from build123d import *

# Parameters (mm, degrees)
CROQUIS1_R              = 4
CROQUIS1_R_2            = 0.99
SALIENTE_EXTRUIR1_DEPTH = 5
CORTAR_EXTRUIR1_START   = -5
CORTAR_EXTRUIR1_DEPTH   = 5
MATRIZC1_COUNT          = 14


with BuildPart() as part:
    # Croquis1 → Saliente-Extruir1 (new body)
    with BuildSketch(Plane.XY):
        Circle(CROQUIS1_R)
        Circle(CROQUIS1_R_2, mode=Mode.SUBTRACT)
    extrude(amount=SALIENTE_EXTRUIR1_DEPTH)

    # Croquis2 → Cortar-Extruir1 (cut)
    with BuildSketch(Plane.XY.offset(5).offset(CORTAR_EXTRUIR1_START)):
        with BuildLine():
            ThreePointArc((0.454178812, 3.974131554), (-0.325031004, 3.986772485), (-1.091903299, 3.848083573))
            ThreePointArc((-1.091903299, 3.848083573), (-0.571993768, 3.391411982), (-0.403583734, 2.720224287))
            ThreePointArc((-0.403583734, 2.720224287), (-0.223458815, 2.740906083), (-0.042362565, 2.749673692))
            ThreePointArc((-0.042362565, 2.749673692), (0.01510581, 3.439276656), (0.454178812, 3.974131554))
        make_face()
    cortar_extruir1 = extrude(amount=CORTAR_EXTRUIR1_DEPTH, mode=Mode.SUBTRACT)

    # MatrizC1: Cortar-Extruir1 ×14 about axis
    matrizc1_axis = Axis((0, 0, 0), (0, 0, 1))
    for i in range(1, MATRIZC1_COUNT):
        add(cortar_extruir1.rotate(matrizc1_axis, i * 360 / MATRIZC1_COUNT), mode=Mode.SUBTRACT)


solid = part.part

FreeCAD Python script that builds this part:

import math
import FreeCAD as App
import Part
import Sketcher

doc = App.newDocument("Part")
body = doc.addObject("PartDesign::Body", "Body")

sketch1 = doc.addObject("Sketcher::SketchObject", "Sketch")
body.addObject(sketch1)
sketch1.AttachmentSupport = (doc.XY_Plane, [""])
sketch1.MapMode = "FlatFace"
sketch1.addGeometry([
    Part.Circle(App.Vector(0, 0, 0), App.Vector(0, 0, 1), 4),
    Part.Circle(App.Vector(0, 0, 0), App.Vector(0, 0, 1), 1),
], False)
sketch1.addConstraint([
    Sketcher.Constraint("Coincident", 0, 3, -1, 1),
    Sketcher.Constraint("Coincident", 1, 3, -1, 1),
    Sketcher.Constraint("Diameter", 0, 8.0),
    Sketcher.Constraint("Diameter", 1, 1.98),
])
pad1 = doc.addObject("PartDesign::Pad", "Pad")
body.addObject(pad1)
pad1.Profile = sketch1
pad1.Length = 5

sketch2 = doc.addObject("Sketcher::SketchObject", "Sketch001")
body.addObject(sketch2)
sketch2.AttachmentSupport = (doc.XY_Plane, [""])
sketch2.MapMode = "FlatFace"
sketch2.addGeometry([
    Part.ArcOfCircle(Part.Circle(App.Vector(0, 0, 0), App.Vector(0, 0, 1), 4), math.radians(83), math.radians(106)),
    Part.ArcOfCircle(Part.Circle(App.Vector(-1.56, 2.79, 0), App.Vector(0, 0, 1), 1.16), math.radians(-3), math.radians(66)),
    Part.ArcOfCircle(Part.Circle(App.Vector(0, 0, 0), App.Vector(0, 0, 1), 2.75), math.radians(90.88), math.radians(98.44)),
    Part.ArcOfCircle(Part.Circle(App.Vector(1.09, 3, 0), App.Vector(0, 0, 1), 1.16), math.radians(123), math.radians(193)),
], False)
sketch2.addConstraint([
    Sketcher.Constraint("Coincident", 0, 2, 1, 2),
    Sketcher.Constraint("Coincident", 1, 1, 2, 2),
    Sketcher.Constraint("Coincident", 2, 1, 3, 2),
    Sketcher.Constraint("Coincident", 3, 1, 0, 1),
    Sketcher.Constraint("Coincident", 0, 3, -1, 1),
    Sketcher.Constraint("Coincident", 2, 3, -1, 1),
    Sketcher.Constraint("Equal", 1, 3),
    Sketcher.Constraint("Radius", 0, 4.0),
    Sketcher.Constraint("Radius", 2, 2.75),
    Sketcher.Constraint("Radius", 1, 1.162868),
    Sketcher.Constraint("DistanceX", 2, 1, 3, 3, 1.135102),
    Sketcher.Constraint("DistanceX", 1, 3, -1, 1, 1.564611),
    Sketcher.Constraint("DistanceY", -1, 1, 1, 3, 2.785629),
    Sketcher.Constraint("DistanceX", -1, 1, 3, 3, 1.092739),
])
pocket1 = doc.addObject("PartDesign::Pocket", "Pocket")
body.addObject(pocket1)
pocket1.Profile = sketch2
pocket1.Length = 5
pocket1.Reversed = True
doc.recompute()

polarpattern = doc.addObject("PartDesign::PolarPattern", "PolarPattern")
body.addObject(polarpattern)
polarpattern.Originals = [pocket1]
polarpattern.Axis = (doc.Z_Axis, [""])
polarpattern.Angle = 360
polarpattern.Occurrences = 14
body.Tip = polarpattern

doc.recompute()
